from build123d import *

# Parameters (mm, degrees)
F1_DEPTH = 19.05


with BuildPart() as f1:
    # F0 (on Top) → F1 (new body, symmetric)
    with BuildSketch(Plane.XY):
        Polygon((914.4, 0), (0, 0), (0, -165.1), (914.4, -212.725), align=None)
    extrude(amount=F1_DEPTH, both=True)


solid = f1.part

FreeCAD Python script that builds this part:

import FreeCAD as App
import Part
import Sketcher
Q = App.Units.Quantity

doc = App.newDocument("Part")
body = doc.addObject("PartDesign::Body", "Body")

# Sketch on XY plane
sketch1 = body.newObject("Sketcher::SketchObject", "Sketch")
sketch1.AttachmentSupport = (doc.getObject("XY_Plane"), [""])
sketch1.MapMode = "FlatFace"
sketch1.addGeometry(Part.LineSegment(App.Vector(914, 0, 0), App.Vector(0, 0, 0)), False)
sketch1.addGeometry(Part.LineSegment(App.Vector(0, 0, 0), App.Vector(0, -165, 0)), False)
sketch1.addGeometry(Part.LineSegment(App.Vector(0, -165, 0), App.Vector(914, -213, 0)), False)
sketch1.addGeometry(Part.LineSegment(App.Vector(914, -213, 0), App.Vector(914, 0, 0)), False)
sketch1.addConstraint(Sketcher.Constraint("Coincident", 0, 2, 1, 1))
sketch1.addConstraint(Sketcher.Constraint("Coincident", 1, 2, 2, 1))
sketch1.addConstraint(Sketcher.Constraint("Coincident", 2, 2, 3, 1))
sketch1.addConstraint(Sketcher.Constraint("Coincident", 3, 2, 0, 1))
sketch1.addConstraint(Sketcher.Constraint("Horizontal", 0))
sketch1.addConstraint(Sketcher.Constraint("Vertical", 1))
sketch1.addConstraint(Sketcher.Constraint("Vertical", 3))
sketch1.addConstraint(Sketcher.Constraint("Coincident", 0, 2, -1, 1))
sketch1.addConstraint(Sketcher.Constraint("DistanceX", 0, 2, 0, 1, Q("36 in")))
sketch1.addConstraint(Sketcher.Constraint("DistanceY", 1, 2, 1, 1, Q("6.5 in")))
sketch1.addConstraint(Sketcher.Constraint("DistanceY", 3, 1, 3, 2, Q("8.375 in")))
pad1 = body.newObject("PartDesign::Pad", "Pad")
pad1.Profile = sketch1
pad1.Length = Q("1.5 in")
pad1.Midplane = True

doc.recompute()
